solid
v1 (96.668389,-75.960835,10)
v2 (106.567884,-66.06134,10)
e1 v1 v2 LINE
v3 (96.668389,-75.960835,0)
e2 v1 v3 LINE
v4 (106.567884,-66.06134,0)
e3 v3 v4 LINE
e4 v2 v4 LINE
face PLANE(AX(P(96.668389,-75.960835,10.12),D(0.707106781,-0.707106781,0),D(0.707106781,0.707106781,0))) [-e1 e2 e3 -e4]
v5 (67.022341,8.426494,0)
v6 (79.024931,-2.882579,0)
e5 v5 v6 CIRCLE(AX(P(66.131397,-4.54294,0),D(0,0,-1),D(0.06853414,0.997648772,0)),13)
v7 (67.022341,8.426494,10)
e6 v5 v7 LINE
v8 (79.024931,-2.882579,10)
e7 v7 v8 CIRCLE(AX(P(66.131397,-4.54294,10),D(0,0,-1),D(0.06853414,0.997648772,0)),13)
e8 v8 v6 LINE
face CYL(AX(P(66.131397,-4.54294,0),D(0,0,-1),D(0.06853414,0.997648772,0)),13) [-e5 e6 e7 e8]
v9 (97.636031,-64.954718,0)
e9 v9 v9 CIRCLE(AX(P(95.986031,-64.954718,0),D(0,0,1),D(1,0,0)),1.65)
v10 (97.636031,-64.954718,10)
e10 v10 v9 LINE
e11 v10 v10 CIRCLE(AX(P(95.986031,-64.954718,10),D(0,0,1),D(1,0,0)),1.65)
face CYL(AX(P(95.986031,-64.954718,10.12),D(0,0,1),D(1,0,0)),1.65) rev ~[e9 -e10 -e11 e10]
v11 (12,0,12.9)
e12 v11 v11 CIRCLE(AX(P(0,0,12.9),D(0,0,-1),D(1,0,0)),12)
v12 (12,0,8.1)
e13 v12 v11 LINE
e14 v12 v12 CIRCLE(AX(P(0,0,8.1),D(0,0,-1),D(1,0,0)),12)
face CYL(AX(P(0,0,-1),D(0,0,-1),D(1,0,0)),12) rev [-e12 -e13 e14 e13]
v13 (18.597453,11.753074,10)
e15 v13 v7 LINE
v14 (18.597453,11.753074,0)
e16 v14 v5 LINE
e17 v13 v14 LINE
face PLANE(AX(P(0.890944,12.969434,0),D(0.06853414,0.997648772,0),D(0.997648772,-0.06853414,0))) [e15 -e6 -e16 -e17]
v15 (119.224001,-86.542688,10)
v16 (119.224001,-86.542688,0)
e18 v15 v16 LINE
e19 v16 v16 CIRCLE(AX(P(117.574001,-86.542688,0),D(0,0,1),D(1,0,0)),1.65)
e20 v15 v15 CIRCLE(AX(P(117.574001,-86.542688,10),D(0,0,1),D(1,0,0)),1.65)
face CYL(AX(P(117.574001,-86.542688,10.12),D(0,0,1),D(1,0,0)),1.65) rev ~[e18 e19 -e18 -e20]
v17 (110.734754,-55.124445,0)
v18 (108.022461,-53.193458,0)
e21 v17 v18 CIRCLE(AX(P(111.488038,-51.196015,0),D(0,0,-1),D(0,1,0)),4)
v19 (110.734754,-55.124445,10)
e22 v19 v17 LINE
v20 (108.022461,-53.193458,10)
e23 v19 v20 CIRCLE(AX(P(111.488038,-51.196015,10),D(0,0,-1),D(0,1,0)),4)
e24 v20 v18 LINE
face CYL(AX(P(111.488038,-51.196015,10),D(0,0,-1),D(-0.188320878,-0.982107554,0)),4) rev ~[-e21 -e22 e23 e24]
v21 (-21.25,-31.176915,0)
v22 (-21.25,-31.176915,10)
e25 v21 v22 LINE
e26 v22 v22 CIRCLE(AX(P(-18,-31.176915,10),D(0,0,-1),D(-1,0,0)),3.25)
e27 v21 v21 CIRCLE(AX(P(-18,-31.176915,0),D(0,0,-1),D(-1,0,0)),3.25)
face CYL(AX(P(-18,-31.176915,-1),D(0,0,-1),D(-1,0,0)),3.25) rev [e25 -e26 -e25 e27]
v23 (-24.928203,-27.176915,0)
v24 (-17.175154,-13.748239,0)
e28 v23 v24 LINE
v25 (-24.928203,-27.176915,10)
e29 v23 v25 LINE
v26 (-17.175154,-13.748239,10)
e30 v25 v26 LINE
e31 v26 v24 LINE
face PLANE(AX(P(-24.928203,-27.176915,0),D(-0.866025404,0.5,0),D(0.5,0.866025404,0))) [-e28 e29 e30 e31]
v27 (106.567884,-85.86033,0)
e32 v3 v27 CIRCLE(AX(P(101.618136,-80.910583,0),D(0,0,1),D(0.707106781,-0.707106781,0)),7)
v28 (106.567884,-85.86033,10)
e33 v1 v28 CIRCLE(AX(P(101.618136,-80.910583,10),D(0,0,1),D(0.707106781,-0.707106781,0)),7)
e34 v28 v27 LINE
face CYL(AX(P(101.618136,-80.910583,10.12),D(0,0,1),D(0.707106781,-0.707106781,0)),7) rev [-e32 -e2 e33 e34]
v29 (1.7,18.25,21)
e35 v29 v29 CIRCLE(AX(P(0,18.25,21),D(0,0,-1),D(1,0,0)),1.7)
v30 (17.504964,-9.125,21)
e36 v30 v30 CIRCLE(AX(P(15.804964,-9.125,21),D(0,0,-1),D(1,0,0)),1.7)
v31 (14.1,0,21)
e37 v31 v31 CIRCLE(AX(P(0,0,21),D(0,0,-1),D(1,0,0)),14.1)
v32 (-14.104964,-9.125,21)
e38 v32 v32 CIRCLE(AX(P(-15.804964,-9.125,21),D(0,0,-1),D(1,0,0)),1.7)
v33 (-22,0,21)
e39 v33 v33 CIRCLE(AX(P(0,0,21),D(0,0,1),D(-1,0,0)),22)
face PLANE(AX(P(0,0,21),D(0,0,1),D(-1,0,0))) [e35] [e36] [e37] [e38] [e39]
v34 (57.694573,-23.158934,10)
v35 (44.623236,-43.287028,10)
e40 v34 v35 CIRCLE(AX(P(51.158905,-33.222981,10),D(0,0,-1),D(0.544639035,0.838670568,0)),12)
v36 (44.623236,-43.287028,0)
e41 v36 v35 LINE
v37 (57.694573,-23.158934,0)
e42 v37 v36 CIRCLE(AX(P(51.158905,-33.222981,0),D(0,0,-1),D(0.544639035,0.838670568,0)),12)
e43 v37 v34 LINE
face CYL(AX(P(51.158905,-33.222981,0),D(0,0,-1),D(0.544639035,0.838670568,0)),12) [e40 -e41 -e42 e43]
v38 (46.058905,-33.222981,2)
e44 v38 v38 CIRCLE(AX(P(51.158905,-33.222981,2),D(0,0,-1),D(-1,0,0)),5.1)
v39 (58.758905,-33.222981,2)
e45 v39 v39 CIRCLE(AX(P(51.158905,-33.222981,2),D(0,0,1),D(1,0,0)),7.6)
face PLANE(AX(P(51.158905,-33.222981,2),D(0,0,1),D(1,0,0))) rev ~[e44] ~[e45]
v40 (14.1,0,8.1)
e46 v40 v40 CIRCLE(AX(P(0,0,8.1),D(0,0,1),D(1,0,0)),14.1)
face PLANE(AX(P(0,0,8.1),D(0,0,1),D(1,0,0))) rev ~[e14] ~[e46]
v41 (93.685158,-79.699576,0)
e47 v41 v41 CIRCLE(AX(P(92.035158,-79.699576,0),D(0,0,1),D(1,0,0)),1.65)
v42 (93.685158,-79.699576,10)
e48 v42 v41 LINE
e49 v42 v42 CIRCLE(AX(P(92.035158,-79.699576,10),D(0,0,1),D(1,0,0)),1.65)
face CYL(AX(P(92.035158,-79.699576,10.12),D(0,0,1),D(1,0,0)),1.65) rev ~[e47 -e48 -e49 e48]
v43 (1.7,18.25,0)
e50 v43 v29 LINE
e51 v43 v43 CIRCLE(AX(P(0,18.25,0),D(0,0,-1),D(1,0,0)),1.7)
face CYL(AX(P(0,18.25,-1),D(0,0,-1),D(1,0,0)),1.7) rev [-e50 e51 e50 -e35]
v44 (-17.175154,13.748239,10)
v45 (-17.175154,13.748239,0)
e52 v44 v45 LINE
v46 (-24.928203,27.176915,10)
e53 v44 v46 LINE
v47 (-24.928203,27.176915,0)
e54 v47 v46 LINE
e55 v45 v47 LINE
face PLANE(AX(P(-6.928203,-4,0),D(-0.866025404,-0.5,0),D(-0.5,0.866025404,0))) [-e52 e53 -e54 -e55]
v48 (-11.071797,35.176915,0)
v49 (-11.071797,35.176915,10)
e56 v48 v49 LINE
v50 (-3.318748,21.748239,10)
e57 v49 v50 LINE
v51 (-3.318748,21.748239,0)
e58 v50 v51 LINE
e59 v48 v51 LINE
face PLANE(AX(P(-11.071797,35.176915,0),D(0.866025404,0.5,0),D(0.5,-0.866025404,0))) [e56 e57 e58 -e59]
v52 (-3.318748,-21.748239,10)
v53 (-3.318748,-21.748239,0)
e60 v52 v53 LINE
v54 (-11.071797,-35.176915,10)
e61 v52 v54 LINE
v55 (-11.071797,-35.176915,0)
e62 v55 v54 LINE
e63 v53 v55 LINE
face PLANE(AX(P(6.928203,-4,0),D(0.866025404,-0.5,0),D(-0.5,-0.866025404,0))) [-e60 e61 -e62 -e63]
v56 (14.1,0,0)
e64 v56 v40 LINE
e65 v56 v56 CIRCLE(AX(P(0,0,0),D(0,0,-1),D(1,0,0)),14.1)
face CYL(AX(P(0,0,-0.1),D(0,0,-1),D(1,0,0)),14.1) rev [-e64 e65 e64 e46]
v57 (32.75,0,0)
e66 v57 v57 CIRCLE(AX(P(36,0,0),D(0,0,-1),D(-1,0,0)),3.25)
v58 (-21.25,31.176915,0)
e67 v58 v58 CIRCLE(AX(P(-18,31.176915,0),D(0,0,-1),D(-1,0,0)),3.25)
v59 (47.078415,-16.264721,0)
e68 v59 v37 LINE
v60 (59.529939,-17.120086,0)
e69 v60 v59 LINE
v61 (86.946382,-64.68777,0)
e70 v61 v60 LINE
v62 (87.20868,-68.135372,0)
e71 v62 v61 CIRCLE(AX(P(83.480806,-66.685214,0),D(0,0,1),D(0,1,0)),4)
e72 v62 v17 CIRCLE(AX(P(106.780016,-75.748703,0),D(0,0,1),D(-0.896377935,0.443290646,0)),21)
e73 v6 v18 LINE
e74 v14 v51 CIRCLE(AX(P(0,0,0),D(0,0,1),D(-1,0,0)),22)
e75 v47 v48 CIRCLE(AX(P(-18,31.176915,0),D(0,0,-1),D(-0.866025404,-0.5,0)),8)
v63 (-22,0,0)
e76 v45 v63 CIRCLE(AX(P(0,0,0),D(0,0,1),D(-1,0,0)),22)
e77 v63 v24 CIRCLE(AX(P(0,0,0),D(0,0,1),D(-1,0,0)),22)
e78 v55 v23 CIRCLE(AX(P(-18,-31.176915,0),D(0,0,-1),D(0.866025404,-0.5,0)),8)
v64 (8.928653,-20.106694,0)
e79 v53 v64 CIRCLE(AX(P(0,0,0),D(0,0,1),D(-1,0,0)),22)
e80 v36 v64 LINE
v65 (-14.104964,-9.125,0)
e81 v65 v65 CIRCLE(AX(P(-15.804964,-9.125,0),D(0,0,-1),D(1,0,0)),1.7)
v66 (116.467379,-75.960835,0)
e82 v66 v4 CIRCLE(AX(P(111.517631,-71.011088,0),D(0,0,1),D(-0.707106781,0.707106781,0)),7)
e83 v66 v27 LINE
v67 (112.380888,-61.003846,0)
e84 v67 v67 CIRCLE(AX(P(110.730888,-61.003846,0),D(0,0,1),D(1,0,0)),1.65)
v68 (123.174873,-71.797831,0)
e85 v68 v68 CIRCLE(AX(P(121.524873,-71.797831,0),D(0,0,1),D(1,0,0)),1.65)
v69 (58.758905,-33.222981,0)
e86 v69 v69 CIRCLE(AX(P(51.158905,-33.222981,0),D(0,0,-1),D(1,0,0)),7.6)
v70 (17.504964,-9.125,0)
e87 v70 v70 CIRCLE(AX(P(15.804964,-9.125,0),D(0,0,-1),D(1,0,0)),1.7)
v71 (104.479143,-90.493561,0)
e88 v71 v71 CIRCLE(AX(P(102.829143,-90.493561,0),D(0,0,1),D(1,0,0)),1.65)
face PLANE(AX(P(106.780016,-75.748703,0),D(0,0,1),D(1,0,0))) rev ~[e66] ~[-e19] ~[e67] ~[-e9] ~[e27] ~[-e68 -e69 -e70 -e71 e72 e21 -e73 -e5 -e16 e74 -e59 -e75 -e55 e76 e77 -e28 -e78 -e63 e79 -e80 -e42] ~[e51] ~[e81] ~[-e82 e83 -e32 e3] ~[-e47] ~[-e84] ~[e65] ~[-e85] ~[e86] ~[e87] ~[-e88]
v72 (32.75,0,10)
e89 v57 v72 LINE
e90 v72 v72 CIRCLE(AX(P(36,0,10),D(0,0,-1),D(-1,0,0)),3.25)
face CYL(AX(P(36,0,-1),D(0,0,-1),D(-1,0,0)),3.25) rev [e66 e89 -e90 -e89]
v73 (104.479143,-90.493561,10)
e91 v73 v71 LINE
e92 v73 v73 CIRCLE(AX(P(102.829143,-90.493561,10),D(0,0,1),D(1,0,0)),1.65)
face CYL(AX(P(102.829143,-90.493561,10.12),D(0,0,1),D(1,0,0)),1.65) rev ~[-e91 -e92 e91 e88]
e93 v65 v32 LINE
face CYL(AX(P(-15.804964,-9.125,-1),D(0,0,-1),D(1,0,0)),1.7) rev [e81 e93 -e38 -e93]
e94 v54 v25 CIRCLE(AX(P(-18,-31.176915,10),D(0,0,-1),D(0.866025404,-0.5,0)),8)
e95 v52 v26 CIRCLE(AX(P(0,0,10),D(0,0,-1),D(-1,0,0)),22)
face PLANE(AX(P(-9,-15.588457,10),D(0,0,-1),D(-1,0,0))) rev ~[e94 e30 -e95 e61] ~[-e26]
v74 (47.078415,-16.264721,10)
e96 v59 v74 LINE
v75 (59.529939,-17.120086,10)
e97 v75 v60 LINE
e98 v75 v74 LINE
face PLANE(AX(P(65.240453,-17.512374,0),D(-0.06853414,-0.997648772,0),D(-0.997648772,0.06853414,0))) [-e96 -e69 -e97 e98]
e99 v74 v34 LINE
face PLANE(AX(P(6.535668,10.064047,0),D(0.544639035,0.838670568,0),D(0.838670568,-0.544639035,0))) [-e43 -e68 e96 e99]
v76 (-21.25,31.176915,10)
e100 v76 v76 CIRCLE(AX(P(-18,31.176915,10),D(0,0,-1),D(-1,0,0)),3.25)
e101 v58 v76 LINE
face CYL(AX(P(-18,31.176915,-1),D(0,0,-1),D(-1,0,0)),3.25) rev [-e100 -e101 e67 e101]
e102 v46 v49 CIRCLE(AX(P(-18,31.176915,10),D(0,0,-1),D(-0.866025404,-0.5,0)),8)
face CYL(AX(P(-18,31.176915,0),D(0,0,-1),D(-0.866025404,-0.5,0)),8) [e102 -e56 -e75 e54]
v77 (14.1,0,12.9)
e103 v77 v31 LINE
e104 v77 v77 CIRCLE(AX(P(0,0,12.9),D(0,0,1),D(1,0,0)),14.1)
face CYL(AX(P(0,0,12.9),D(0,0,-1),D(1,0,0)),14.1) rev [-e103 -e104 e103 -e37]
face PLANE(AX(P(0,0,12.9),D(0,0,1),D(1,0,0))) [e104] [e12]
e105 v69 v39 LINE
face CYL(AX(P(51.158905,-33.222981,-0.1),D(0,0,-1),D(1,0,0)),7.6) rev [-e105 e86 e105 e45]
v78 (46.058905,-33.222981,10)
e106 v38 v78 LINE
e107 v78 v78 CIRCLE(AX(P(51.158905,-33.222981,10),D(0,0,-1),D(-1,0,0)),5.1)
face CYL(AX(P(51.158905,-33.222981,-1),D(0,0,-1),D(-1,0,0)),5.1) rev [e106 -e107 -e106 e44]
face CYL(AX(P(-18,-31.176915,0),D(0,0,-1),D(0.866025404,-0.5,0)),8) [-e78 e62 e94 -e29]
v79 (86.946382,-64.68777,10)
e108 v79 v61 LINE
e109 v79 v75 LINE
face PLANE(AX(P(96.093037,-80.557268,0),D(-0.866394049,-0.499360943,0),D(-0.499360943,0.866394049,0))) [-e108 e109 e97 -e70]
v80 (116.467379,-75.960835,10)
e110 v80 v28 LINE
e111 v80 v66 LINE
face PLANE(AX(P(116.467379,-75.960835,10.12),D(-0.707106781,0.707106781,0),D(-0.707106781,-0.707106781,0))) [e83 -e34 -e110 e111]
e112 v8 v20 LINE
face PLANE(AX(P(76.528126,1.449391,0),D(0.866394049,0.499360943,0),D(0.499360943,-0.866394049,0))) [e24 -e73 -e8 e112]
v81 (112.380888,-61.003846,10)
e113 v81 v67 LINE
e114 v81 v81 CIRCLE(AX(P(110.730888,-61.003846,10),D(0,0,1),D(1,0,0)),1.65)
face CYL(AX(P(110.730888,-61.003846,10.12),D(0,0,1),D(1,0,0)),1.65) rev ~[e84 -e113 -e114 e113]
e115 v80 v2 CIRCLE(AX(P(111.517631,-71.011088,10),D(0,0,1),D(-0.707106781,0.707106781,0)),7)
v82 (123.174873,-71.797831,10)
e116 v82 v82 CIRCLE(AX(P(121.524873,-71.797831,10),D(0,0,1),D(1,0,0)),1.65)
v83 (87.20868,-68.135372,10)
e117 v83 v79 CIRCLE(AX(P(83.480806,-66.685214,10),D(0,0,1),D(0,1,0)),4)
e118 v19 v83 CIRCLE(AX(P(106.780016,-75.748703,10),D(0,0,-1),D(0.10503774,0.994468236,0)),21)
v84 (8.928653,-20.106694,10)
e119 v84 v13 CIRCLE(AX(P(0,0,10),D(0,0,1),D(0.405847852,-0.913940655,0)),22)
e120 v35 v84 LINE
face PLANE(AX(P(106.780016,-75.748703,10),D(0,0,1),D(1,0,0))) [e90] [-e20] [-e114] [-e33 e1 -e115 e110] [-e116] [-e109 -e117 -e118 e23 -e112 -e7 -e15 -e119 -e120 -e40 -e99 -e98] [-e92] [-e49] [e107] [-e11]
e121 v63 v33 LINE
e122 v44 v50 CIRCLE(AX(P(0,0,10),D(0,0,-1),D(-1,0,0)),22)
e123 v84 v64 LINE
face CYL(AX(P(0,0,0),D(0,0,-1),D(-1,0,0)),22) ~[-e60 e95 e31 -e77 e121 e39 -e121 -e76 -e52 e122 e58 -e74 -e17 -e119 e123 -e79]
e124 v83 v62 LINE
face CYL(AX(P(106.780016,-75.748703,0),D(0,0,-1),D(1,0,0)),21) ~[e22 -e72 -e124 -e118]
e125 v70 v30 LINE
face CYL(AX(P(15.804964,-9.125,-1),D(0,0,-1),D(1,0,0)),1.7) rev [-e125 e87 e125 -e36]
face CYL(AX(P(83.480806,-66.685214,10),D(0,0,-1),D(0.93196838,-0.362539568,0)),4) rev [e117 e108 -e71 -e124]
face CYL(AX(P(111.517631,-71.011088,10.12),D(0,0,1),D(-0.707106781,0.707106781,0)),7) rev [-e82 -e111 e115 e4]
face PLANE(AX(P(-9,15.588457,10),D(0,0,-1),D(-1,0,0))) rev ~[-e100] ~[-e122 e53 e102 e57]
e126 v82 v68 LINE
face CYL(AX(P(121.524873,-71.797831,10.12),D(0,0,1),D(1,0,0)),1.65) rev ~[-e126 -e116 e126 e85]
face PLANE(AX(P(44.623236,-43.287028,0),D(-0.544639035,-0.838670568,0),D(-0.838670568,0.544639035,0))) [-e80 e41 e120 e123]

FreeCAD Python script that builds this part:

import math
import FreeCAD as App
import Part
import Sketcher
Q = App.Units.Quantity


def edges_at(feature, points):
    """Names of the edges that pass closest to the given points."""
    edges = feature.Shape.Edges
    near = lambda p: min(range(len(edges)), key=lambda i: edges[i].distToShape(Part.Vertex(*p))[0])
    return sorted({f"Edge{near(p) + 1}" for p in points})

doc = App.newDocument("Part")
body = doc.addObject("PartDesign::Body", "Body")

# Sketch on XY plane
sketch1 = body.newObject("Sketcher::SketchObject", "Sketch")
sketch1.AttachmentSupport = (doc.getObject("XY_Plane"), [""])
sketch1.MapMode = "FlatFace"
sketch1.addGeometry(Part.Circle(App.Vector(0, 0, 0), App.Vector(0, 0, 1), 22), False)
sketch1.addConstraint(Sketcher.Constraint("Coincident", 0, 3, -1, 1))
sketch1.addConstraint(Sketcher.Constraint("Diameter", 0, 44.0))
pad1 = body.newObject("PartDesign::Pad", "Pad")
pad1.Profile = sketch1
pad1.Length = 21

# Sketch on XY plane
sketch2 = body.newObject("Sketcher::SketchObject", "Sketch001")
sketch2.AttachmentSupport = (doc.getObject("XY_Plane"), [""])
sketch2.MapMode = "FlatFace"
sketch2.addGeometry(Part.LineSegment(App.Vector(36, 8, 0), App.Vector(0, 8, 0)), False)
sketch2.addGeometry(Part.ArcOfCircle(Part.Circle(App.Vector(0, 0, 0), App.Vector(0, 0, 1), 8), math.radians(90), math.radians(270)), False)
sketch2.addGeometry(Part.LineSegment(App.Vector(0, -8, 0), App.Vector(36, -8, 0)), False)
sketch2.addGeometry(Part.ArcOfCircle(Part.Circle(App.Vector(36, 0, 0), App.Vector(0, 0, 1), 8), math.radians(-90), math.radians(90)), False)
sketch2.addConstraint(Sketcher.Constraint("Tangent", 0, 2, 1, 1))
sketch2.addConstraint(Sketcher.Constraint("Tangent", 1, 2, 2, 1))
sketch2.addConstraint(Sketcher.Constraint("Tangent", 2, 2, 3, 1))
sketch2.addConstraint(Sketcher.Constraint("Tangent", 3, 2, 0, 1))
sketch2.addConstraint(Sketcher.Constraint("Horizontal", 0))
sketch2.addConstraint(Sketcher.Constraint("Horizontal", 2))
sketch2.addConstraint(Sketcher.Constraint("Coincident", 1, 3, -1, 1))
sketch2.addConstraint(Sketcher.Constraint("Radius", 1, 8.0))
sketch2.addConstraint(Sketcher.Constraint("DistanceX", 0, 2, 0, 1, 36.0))
pad2 = body.newObject("PartDesign::Pad", "Pad001")
pad2.Profile = sketch2
pad2.Length = 10

# Sketch on XY plane
sketch3 = body.newObject("Sketcher::SketchObject", "Sketch002")
sketch3.AttachmentSupport = (doc.getObject("XY_Plane"), [""])
sketch3.MapMode = "FlatFace"
sketch3.addGeometry(Part.LineSegment(App.Vector(-25, 27, 0), App.Vector(-7, -4, 0)), False)
sketch3.addGeometry(Part.ArcOfCircle(Part.Circle(App.Vector(0, 0, 0), App.Vector(0, 0, 1), 8), math.radians(-150), math.radians(30)), False)
sketch3.addGeometry(Part.LineSegment(App.Vector(7, 4, 0), App.Vector(-11, 35, 0)), False)
sketch3.addGeometry(Part.ArcOfCircle(Part.Circle(App.Vector(-18, 31, 0), App.Vector(0, 0, 1), 8), math.radians(30), math.radians(210)), False)
sketch3.addConstraint(Sketcher.Constraint("Tangent", 0, 2, 1, 1))
sketch3.addConstraint(Sketcher.Constraint("Tangent", 1, 2, 2, 1))
sketch3.addConstraint(Sketcher.Constraint("Tangent", 2, 2, 3, 1))
sketch3.addConstraint(Sketcher.Constraint("Tangent", 3, 2, 0, 1))
sketch3.addConstraint(Sketcher.Constraint("Coincident", 1, 3, -1, 1))
sketch3.addConstraint(Sketcher.Constraint("Equal", 1, 3))
sketch3.addConstraint(Sketcher.Constraint("Radius", 1, 8.0))
sketch3.addConstraint(Sketcher.Constraint("Angle", 0, Q("-60 deg")))
sketch3.addConstraint(Sketcher.Constraint("Distance", 0, 36.0))
pad3 = body.newObject("PartDesign::Pad", "Pad002")
pad3.Profile = sketch3
pad3.Length = 10

# Sketch on XY plane
sketch4 = body.newObject("Sketcher::SketchObject", "Sketch003")
sketch4.AttachmentSupport = (doc.getObject("XY_Plane"), [""])
sketch4.MapMode = "FlatFace"
sketch4.addGeometry(Part.LineSegment(App.Vector(-11, -35, 0), App.Vector(7, -4, 0)), False)
sketch4.addGeometry(Part.ArcOfCircle(Part.Circle(App.Vector(0, 0, 0), App.Vector(0, 0, 1), 8), math.radians(-30), math.radians(150)), False)
sketch4.addGeometry(Part.LineSegment(App.Vector(-7, 4, 0), App.Vector(-25, -27, 0)), False)
sketch4.addGeometry(Part.ArcOfCircle(Part.Circle(App.Vector(-18, -31, 0), App.Vector(0, 0, 1), 8), math.radians(150), math.radians(330)), False)
sketch4.addConstraint(Sketcher.Constraint("Tangent", 0, 2, 1, 1))
sketch4.addConstraint(Sketcher.Constraint("Tangent", 1, 2, 2, 1))
sketch4.addConstraint(Sketcher.Constraint("Tangent", 2, 2, 3, 1))
sketch4.addConstraint(Sketcher.Constraint("Tangent", 3, 2, 0, 1))
sketch4.addConstraint(Sketcher.Constraint("Coincident", 1, 3, -1, 1))
sketch4.addConstraint(Sketcher.Constraint("Equal", 1, 3))
sketch4.addConstraint(Sketcher.Constraint("Radius", 1, 8.0))
sketch4.addConstraint(Sketcher.Constraint("Angle", 0, Q("60 deg")))
sketch4.addConstraint(Sketcher.Constraint("Distance", 0, 36.0))
pad4 = body.newObject("PartDesign::Pad", "Pad003")
pad4.Profile = sketch4
pad4.Length = 10

# Sketch on XY plane
sketch5 = body.newObject("Sketcher::SketchObject", "Sketch004")
sketch5.AttachmentSupport = (doc.getObject("XY_Plane"), [""])
sketch5.MapMode = "FlatFace"
sketch5.addGeometry(Part.LineSegment(App.Vector(67, 8, 0), App.Vector(1, 13, 0)), False)
sketch5.addGeometry(Part.ArcOfCircle(Part.Circle(App.Vector(0, 0, 0), App.Vector(0, 0, 1), 13), math.radians(86), math.radians(266)), False)
sketch5.addGeometry(Part.LineSegment(App.Vector(-1, -13, 0), App.Vector(65, -18, 0)), False)
sketch5.addGeometry(Part.ArcOfCircle(Part.Circle(App.Vector(66, -5, 0), App.Vector(0, 0, 1), 13), math.radians(-94), math.radians(86)), False)
sketch5.addConstraint(Sketcher.Constraint("Tangent", 0, 2, 1, 1))
sketch5.addConstraint(Sketcher.Constraint("Tangent", 1, 2, 2, 1))
sketch5.addConstraint(Sketcher.Constraint("Tangent", 2, 2, 3, 1))
sketch5.addConstraint(Sketcher.Constraint("Tangent", 3, 2, 0, 1))
sketch5.addConstraint(Sketcher.Constraint("Coincident", 1, 3, -1, 1))
sketch5.addConstraint(Sketcher.Constraint("Equal", 1, 3))
sketch5.addConstraint(Sketcher.Constraint("Radius", 1, 13.0))
sketch5.addConstraint(Sketcher.Constraint("DistanceY", 3, 3, -1, 1, 4.54294))
sketch5.addConstraint(Sketcher.Constraint("DistanceX", -1, 1, 3, 2, 67.022341))
pad5 = body.newObject("PartDesign::Pad", "Pad004")
pad5.Profile = sketch5
pad5.Length = 10

# Sketch on XY plane
sketch6 = body.newObject("Sketcher::SketchObject", "Sketch005")
sketch6.AttachmentSupport = (doc.getObject("XY_Plane"), [""])
sketch6.MapMode = "FlatFace"
sketch6.addGeometry(Part.LineSegment(App.Vector(117, -69, 0), App.Vector(77, 1, 0)), False)
sketch6.addGeometry(Part.ArcOfCircle(Part.Circle(App.Vector(66, -5, 0), App.Vector(0, 0, 1), 12), math.radians(30), math.radians(210)), False)
sketch6.addGeometry(Part.LineSegment(App.Vector(56, -11, 0), App.Vector(96, -81, 0)), False)
sketch6.addGeometry(Part.ArcOfCircle(Part.Circle(App.Vector(106, -75, 0), App.Vector(0, 0, 1), 12), math.radians(-150), math.radians(30)), False)
sketch6.addConstraint(Sketcher.Constraint("Tangent", 0, 2, 1, 1))
sketch6.addConstraint(Sketcher.Constraint("Tangent", 1, 2, 2, 1))
sketch6.addConstraint(Sketcher.Constraint("Tangent", 2, 2, 3, 1))
sketch6.addConstraint(Sketcher.Constraint("Tangent", 3, 2, 0, 1))
sketch6.addConstraint(Sketcher.Constraint("Equal", 1, 3))
sketch6.addConstraint(Sketcher.Constraint("Radius", 1, 12.0))
sketch6.addConstraint(Sketcher.Constraint("DistanceY", 1, 3, -1, 1, 4.54294))
sketch6.addConstraint(Sketcher.Constraint("DistanceY", -1, 1, 0, 2, 1.449391))
sketch6.addConstraint(Sketcher.Constraint("DistanceX", -1, 1, 1, 2, 55.734669))
sketch6.addConstraint(Sketcher.Constraint("DistanceY", 2, 2, -1, 1, 80.557268))
pad6 = body.newObject("PartDesign::Pad", "Pad005")
pad6.Profile = sketch6
pad6.Length = 10

# Sketch on XY plane
sketch7 = body.newObject("Sketcher::SketchObject", "Sketch006")
sketch7.AttachmentSupport = (doc.getObject("XY_Plane"), [""])
sketch7.MapMode = "FlatFace"
sketch7.addGeometry(Part.LineSegment(App.Vector(58, -23, 0), App.Vector(7, 10, 0)), False)
sketch7.addGeometry(Part.ArcOfCircle(Part.Circle(App.Vector(0, 0, 0), App.Vector(0, 0, 1), 12), math.radians(57), math.radians(237)), False)
sketch7.addGeometry(Part.LineSegment(App.Vector(-7, -10, 0), App.Vector(45, -43, 0)), False)
sketch7.addGeometry(Part.ArcOfCircle(Part.Circle(App.Vector(51, -33, 0), App.Vector(0, 0, 1), 12), math.radians(-123), math.radians(57)), False)
sketch7.addConstraint(Sketcher.Constraint("Tangent", 0, 2, 1, 1))
sketch7.addConstraint(Sketcher.Constraint("Tangent", 1, 2, 2, 1))
sketch7.addConstraint(Sketcher.Constraint("Tangent", 2, 2, 3, 1))
sketch7.addConstraint(Sketcher.Constraint("Tangent", 3, 2, 0, 1))
sketch7.addConstraint(Sketcher.Constraint("Coincident", 1, 3, -1, 1))
sketch7.addConstraint(Sketcher.Constraint("Equal", 1, 3))
sketch7.addConstraint(Sketcher.Constraint("Radius", 1, 12.0))
sketch7.addConstraint(Sketcher.Constraint("Angle", 0, Q("147 deg")))
sketch7.addConstraint(Sketcher.Constraint("Distance", 0, 61.0))
pad7 = body.newObject("PartDesign::Pad", "Pad006")
pad7.Profile = sketch7
pad7.Length = 10

# Sketch on XY plane
sketch8 = body.newObject("Sketcher::SketchObject", "Sketch007")
sketch8.AttachmentSupport = (doc.getObject("XY_Plane"), [""])
sketch8.MapMode = "FlatFace"
sketch8.AttachmentOffset = App.Placement(App.Vector(0, 0, -1), App.Rotation())
sketch8.addGeometry(Part.Circle(App.Vector(0, 0, 0), App.Vector(0, 0, 1), 12), False)
sketch8.addConstraint(Sketcher.Constraint("Coincident", 0, 3, -1, 1))
sketch8.addConstraint(Sketcher.Constraint("Diameter", 0, 24.0))
pocket1 = body.newObject("PartDesign::Pocket", "Pocket")
pocket1.Profile = sketch8
pocket1.Length = 23
pocket1.Reversed = True

# Sketch on XY plane
sketch9 = body.newObject("Sketcher::SketchObject", "Sketch008")
sketch9.AttachmentSupport = (doc.getObject("XY_Plane"), [""])
sketch9.MapMode = "FlatFace"
sketch9.AttachmentOffset = App.Placement(App.Vector(0, 0, -0.1), App.Rotation())
sketch9.addGeometry(Part.Circle(App.Vector(0, 0, 0), App.Vector(0, 0, 1), 14), False)
sketch9.addConstraint(Sketcher.Constraint("Coincident", 0, 3, -1, 1))
sketch9.addConstraint(Sketcher.Constraint("Diameter", 0, 28.2))
pocket2 = body.newObject("PartDesign::Pocket", "Pocket001")
pocket2.Profile = sketch9
pocket2.Length = 8.2
pocket2.Reversed = True

# Sketch on XY plane
sketch10 = body.newObject("Sketcher::SketchObject", "Sketch009")
sketch10.AttachmentSupport = (doc.getObject("XY_Plane"), [""])
sketch10.MapMode = "FlatFace"
sketch10.AttachmentOffset = App.Placement(App.Vector(0, 0, 12.9), App.Rotation())
sketch10.addGeometry(Part.Circle(App.Vector(0, 0, 0), App.Vector(0, 0, 1), 14), False)
sketch10.addConstraint(Sketcher.Constraint("Coincident", 0, 3, -1, 1))
sketch10.addConstraint(Sketcher.Constraint("Diameter", 0, 28.2))
pocket3 = body.newObject("PartDesign::Pocket", "Pocket002")
pocket3.Profile = sketch10
pocket3.Length = 8.2
pocket3.Reversed = True

# Sketch on XY plane
sketch11 = body.newObject("Sketcher::SketchObject", "Sketch010")
sketch11.AttachmentSupport = (doc.getObject("XY_Plane"), [""])
sketch11.MapMode = "FlatFace"
sketch11.AttachmentOffset = App.Placement(App.Vector(0, 0, -1), App.Rotation())
sketch11.addGeometry(Part.Circle(App.Vector(0, 18.2, 0), App.Vector(0, 0, 1), 1.7), False)
sketch11.addGeometry(Part.Circle(App.Vector(-15.8, -9.1, 0), App.Vector(0, 0, 1), 1.7), False)
sketch11.addGeometry(Part.Circle(App.Vector(15.8, -9.1, 0), App.Vector(0, 0, 1), 1.7), False)
sketch11.addConstraint(Sketcher.Constraint("Equal", 0, 1))
sketch11.addConstraint(Sketcher.Constraint("Equal", 1, 2))
sketch11.addConstraint(Sketcher.Constraint("Symmetric", 1, 3, 2, 3, -2))
sketch11.addConstraint(Sketcher.Constraint("PointOnObject", 0, 3, -2))
sketch11.addConstraint(Sketcher.Constraint("Diameter", 0, 3.4))
sketch11.addConstraint(Sketcher.Constraint("DistanceY", -1, 1, 0, 3, 18.25))
sketch11.addConstraint(Sketcher.Constraint("DistanceY", 1, 3, -1, 1, 9.125))
sketch11.addConstraint(Sketcher.Constraint("DistanceX", 1, 3, -1, 1, 15.804964))
pocket4 = body.newObject("PartDesign::Pocket", "Pocket003")
pocket4.Profile = sketch11
pocket4.Length = 23
pocket4.Reversed = True

# Sketch on XY plane
sketch12 = body.newObject("Sketcher::SketchObject", "Sketch011")
sketch12.AttachmentSupport = (doc.getObject("XY_Plane"), [""])
sketch12.MapMode = "FlatFace"
sketch12.AttachmentOffset = App.Placement(App.Vector(0, 0, -1), App.Rotation())
sketch12.addGeometry(Part.Circle(App.Vector(36, 0, 0), App.Vector(0, 0, 1), 3.2), False)
sketch12.addGeometry(Part.Circle(App.Vector(-18, 31.2, 0), App.Vector(0, 0, 1), 3.2), False)
sketch12.addGeometry(Part.Circle(App.Vector(-18, -31.2, 0), App.Vector(0, 0, 1), 3.2), False)
sketch12.addConstraint(Sketcher.Constraint("Equal", 0, 1))
sketch12.addConstraint(Sketcher.Constraint("Equal", 1, 2))
sketch12.addConstraint(Sketcher.Constraint("Symmetric", 1, 3, 2, 3, -1))
sketch12.addConstraint(Sketcher.Constraint("PointOnObject", 0, 3, -1))
sketch12.addConstraint(Sketcher.Constraint("Diameter", 0, 6.5))
sketch12.addConstraint(Sketcher.Constraint("DistanceX", -1, 1, 0, 3, 36.0))
sketch12.addConstraint(Sketcher.Constraint("DistanceX", 1, 3, -1, 1, 18.0))
sketch12.addConstraint(Sketcher.Constraint("DistanceY", 2, 3, 1, 3, 62.353829))
pocket5 = body.newObject("PartDesign::Pocket", "Pocket004")
pocket5.Profile = sketch12
pocket5.Length = 12
pocket5.Reversed = True

# Sketch on XY plane
sketch13 = body.newObject("Sketcher::SketchObject", "Sketch012")
sketch13.AttachmentSupport = (doc.getObject("XY_Plane"), [""])
sketch13.MapMode = "FlatFace"
sketch13.AttachmentOffset = App.Placement(App.Vector(0, 0, -1), App.Rotation())
sketch13.addGeometry(Part.Circle(App.Vector(51, -33, 0), App.Vector(0, 0, 1), 5), False)
sketch13.addConstraint(Sketcher.Constraint("Diameter", 0, 10.2))
sketch13.addConstraint(Sketcher.Constraint("DistanceY", 0, 3, -1, 1, 33.222981))
sketch13.addConstraint(Sketcher.Constraint("DistanceX", -1, 1, 0, 3, 51.158905))
pocket6 = body.newObject("PartDesign::Pocket", "Pocket005")
pocket6.Profile = sketch13
pocket6.Length = 12
pocket6.Reversed = True

# Sketch on XY plane
sketch14 = body.newObject("Sketcher::SketchObject", "Sketch013")
sketch14.AttachmentSupport = (doc.getObject("XY_Plane"), [""])
sketch14.MapMode = "FlatFace"
sketch14.AttachmentOffset = App.Placement(App.Vector(0, 0, -0.1), App.Rotation())
sketch14.addGeometry(Part.Circle(App.Vector(51, -33, 0), App.Vector(0, 0, 1), 8), False)
sketch14.addConstraint(Sketcher.Constraint("Diameter", 0, 15.2))
sketch14.addConstraint(Sketcher.Constraint("DistanceY", 0, 3, -1, 1, 33.222981))
sketch14.addConstraint(Sketcher.Constraint("DistanceX", -1, 1, 0, 3, 51.158905))
pocket7 = body.newObject("PartDesign::Pocket", "Pocket006")
pocket7.Profile = sketch14
pocket7.Length = 2.1
pocket7.Reversed = True

# Sketch on XY plane
sketch15 = body.newObject("Sketcher::SketchObject", "Sketch014")
sketch15.AttachmentSupport = (doc.getObject("XY_Plane"), [""])
sketch15.MapMode = "FlatFace"
sketch15.addGeometry(Part.Circle(App.Vector(107, -76, 0), App.Vector(0, 0, 1), 21), False)
sketch15.addConstraint(Sketcher.Constraint("Diameter", 0, 42.0))
sketch15.addConstraint(Sketcher.Constraint("DistanceX", -1, 1, 0, 3, 106.780016))
sketch15.addConstraint(Sketcher.Constraint("DistanceY", 0, 3, -1, 1, 75.748703))
pad8 = body.newObject("PartDesign::Pad", "Pad007")
pad8.Profile = sketch15
pad8.Length = 10
doc.recompute()

fillet = body.newObject("PartDesign::Fillet", "Fillet")
fillet.Base = (pad8, edges_at(pad8, [(108.986, -54.865, 5), (87.956, -66.44, 5)]))
fillet.Radius = 4

# Sketch on XY plane
sketch16 = body.newObject("Sketcher::SketchObject", "Sketch015")
sketch16.AttachmentSupport = (doc.getObject("XY_Plane"), [""])
sketch16.MapMode = "FlatFace"
sketch16.AttachmentOffset = App.Placement(App.Vector(0, 0, 10.12), App.Rotation())
sketch16.addGeometry(Part.LineSegment(App.Vector(107, -66, 0), App.Vector(97, -76, 0)), False)
sketch16.addGeometry(Part.ArcOfCircle(Part.Circle(App.Vector(102, -81, 0), App.Vector(0, 0, 1), 7), math.radians(135), math.radians(315)), False)
sketch16.addGeometry(Part.LineSegment(App.Vector(107, -86, 0), App.Vector(116, -76, 0)), False)
sketch16.addGeometry(Part.ArcOfCircle(Part.Circle(App.Vector(112, -71, 0), App.Vector(0, 0, 1), 7), math.radians(-45), math.radians(135)), False)
sketch16.addConstraint(Sketcher.Constraint("Tangent", 0, 2, 1, 1))
sketch16.addConstraint(Sketcher.Constraint("Tangent", 1, 2, 2, 1))
sketch16.addConstraint(Sketcher.Constraint("Tangent", 2, 2, 3, 1))
sketch16.addConstraint(Sketcher.Constraint("Tangent", 3, 2, 0, 1))
sketch16.addConstraint(Sketcher.Constraint("Equal", 1, 3))
sketch16.addConstraint(Sketcher.Constraint("Horizontal", 0, 2, 2, 2))
sketch16.addConstraint(Sketcher.Constraint("Vertical", 1, 2, 3, 2))
sketch16.addConstraint(Sketcher.Constraint("Radius", 1, 7.0))
sketch16.addConstraint(Sketcher.Constraint("DistanceX", -1, 1, 3, 3, 111.517631))
sketch16.addConstraint(Sketcher.Constraint("DistanceY", 1, 2, -1, 1, 85.86033))
pocket8 = body.newObject("PartDesign::Pocket", "Pocket007")
pocket8.Profile = sketch16
pocket8.Length = 10.24

# Sketch on XY plane
sketch17 = body.newObject("Sketcher::SketchObject", "Sketch016")
sketch17.AttachmentSupport = (doc.getObject("XY_Plane"), [""])
sketch17.MapMode = "FlatFace"
sketch17.AttachmentOffset = App.Placement(App.Vector(0, 0, 10.12), App.Rotation())
sketch17.addGeometry(Part.Circle(App.Vector(92, -79.7, 0), App.Vector(0, 0, 1), 1.6), False)
sketch17.addGeometry(Part.Circle(App.Vector(102.8, -90.5, 0), App.Vector(0, 0, 1), 1.6), False)
sketch17.addGeometry(Part.Circle(App.Vector(117.6, -86.5, 0), App.Vector(0, 0, 1), 1.6), False)
sketch17.addGeometry(Part.Circle(App.Vector(121.5, -71.8, 0), App.Vector(0, 0, 1), 1.6), False)
sketch17.addGeometry(Part.Circle(App.Vector(110.7, -61, 0), App.Vector(0, 0, 1), 1.6), False)
sketch17.addGeometry(Part.Circle(App.Vector(96, -65, 0), App.Vector(0, 0, 1), 1.6), False)
sketch17.addConstraint(Sketcher.Constraint("Equal", 0, 1))
sketch17.addConstraint(Sketcher.Constraint("Equal", 1, 2))
sketch17.addConstraint(Sketcher.Constraint("Equal", 2, 3))
sketch17.addConstraint(Sketcher.Constraint("Equal", 3, 4))
sketch17.addConstraint(Sketcher.Constraint("Equal", 4, 5))
sketch17.addConstraint(Sketcher.Constraint("Diameter", 0, 3.3))
sketch17.addConstraint(Sketcher.Constraint("DistanceX", -1, 1, 2, 3, 117.574001))
sketch17.addConstraint(Sketcher.Constraint("DistanceY", 1, 3, -1, 1, 90.493561))
sketch17.addConstraint(Sketcher.Constraint("DistanceY", 2, 3, -1, 1, 86.542688))
sketch17.addConstraint(Sketcher.Constraint("DistanceY", 3, 3, -1, 1, 71.797831))
sketch17.addConstraint(Sketcher.Constraint("DistanceX", -1, 1, 4, 3, 110.730888))
sketch17.addConstraint(Sketcher.Constraint("DistanceX", -1, 1, 5, 3, 95.986031))
sketch17.addConstraint(Sketcher.Constraint("DistanceY", 5, 3, -1, 1, 64.954718))
sketch17.addConstraint(Sketcher.Constraint("DistanceX", 1, 3, 3, 3, 18.69573))
sketch17.addConstraint(Sketcher.Constraint("DistanceX", 0, 3, 4, 3, 18.69573))
sketch17.addConstraint(Sketcher.Constraint("DistanceY", 0, 3, 4, 3, 18.69573))
sketch17.addConstraint(Sketcher.Constraint("DistanceY", 0, 3, -1, 1, 79.699576))
sketch17.addConstraint(Sketcher.Constraint("DistanceX", -1, 1, 1, 3, 102.829143))
pocket9 = body.newObject("PartDesign::Pocket", "Pocket008")
pocket9.Profile = sketch17
pocket9.Length = 10.24

doc.recompute()
